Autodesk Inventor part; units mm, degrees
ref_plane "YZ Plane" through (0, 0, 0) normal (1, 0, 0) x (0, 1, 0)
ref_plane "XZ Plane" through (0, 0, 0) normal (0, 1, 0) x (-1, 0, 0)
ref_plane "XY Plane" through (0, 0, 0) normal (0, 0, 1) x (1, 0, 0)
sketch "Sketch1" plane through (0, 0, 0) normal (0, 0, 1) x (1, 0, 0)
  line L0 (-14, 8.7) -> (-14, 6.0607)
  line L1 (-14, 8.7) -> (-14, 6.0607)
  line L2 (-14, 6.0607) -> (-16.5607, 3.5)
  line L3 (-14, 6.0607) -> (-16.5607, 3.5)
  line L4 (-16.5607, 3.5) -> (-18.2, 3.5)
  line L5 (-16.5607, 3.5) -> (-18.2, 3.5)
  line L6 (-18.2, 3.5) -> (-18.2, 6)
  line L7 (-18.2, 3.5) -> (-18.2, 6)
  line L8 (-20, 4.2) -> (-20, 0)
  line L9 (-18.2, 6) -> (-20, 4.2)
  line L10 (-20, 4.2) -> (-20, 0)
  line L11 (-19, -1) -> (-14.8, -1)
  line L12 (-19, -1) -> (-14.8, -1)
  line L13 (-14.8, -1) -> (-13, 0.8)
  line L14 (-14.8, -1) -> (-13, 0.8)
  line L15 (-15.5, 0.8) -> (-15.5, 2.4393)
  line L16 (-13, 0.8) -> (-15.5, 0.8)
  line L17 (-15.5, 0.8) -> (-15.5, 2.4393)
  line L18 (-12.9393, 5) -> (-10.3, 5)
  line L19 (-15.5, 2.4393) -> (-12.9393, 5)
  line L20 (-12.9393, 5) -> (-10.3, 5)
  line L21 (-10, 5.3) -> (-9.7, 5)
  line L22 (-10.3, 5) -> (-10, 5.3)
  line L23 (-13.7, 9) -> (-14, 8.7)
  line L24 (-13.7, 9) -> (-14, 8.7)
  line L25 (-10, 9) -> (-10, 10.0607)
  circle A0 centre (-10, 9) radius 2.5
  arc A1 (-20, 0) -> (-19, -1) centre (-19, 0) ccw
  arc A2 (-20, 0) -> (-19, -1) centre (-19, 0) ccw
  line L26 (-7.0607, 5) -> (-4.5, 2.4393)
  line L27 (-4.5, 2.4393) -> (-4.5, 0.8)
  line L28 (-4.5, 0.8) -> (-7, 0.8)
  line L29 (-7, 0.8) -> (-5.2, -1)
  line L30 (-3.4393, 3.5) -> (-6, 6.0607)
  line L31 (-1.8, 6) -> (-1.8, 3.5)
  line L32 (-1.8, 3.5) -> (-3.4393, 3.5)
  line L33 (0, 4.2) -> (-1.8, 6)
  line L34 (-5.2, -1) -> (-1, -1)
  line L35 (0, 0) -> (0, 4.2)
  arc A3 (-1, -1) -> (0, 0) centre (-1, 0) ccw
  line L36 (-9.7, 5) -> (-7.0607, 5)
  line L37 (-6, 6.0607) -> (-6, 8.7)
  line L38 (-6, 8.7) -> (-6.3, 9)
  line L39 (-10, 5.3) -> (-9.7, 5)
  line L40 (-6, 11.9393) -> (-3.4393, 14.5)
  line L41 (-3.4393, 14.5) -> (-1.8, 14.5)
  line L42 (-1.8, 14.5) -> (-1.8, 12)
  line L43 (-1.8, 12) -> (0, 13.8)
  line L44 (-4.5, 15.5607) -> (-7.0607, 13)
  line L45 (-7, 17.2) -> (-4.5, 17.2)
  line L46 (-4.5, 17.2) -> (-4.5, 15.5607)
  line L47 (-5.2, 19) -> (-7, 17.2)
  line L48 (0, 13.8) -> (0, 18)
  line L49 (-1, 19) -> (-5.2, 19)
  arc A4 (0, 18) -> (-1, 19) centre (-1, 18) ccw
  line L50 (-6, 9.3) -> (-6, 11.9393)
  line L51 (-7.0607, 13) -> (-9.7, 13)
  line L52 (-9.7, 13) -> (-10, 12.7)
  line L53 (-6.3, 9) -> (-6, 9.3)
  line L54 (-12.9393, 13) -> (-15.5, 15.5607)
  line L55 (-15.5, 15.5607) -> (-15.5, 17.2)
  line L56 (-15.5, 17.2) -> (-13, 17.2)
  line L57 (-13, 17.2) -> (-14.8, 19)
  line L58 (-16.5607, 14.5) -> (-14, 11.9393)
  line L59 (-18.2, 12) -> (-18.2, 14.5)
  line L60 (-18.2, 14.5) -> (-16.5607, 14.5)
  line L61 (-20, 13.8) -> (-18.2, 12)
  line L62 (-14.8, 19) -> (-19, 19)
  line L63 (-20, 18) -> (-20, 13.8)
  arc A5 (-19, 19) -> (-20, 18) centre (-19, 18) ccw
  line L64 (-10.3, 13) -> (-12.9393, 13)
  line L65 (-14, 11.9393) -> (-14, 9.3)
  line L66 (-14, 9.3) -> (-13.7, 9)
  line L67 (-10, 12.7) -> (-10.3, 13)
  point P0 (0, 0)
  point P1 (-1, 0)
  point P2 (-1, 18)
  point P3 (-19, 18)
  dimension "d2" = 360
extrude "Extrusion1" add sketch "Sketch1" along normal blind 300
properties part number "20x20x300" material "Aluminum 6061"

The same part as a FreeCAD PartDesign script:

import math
import FreeCAD as App
import Part
import Sketcher

V = App.Vector

doc = App.newDocument("Part")
body = doc.addObject("PartDesign::Body", "Body")

sketch1 = body.newObject("Sketcher::SketchObject", "Sketch")
sketch1.AttachmentSupport = (doc.getObject("XY_Plane"), [""])
sketch1.MapMode = "FlatFace"
sketch1.addGeometry(Part.LineSegment(V(-13.7, 9, 0), V(-14, 8.7, 0)), False)
sketch1.addGeometry(Part.LineSegment(V(-14, 8.7, 0), V(-14, 6.0607, 0)), False)
sketch1.addGeometry(Part.LineSegment(V(-14, 6.0607, 0), V(-16.5607, 3.5, 0)), False)
sketch1.addGeometry(Part.LineSegment(V(-16.5607, 3.5, 0), V(-18.2, 3.5, 0)), False)
sketch1.addGeometry(Part.LineSegment(V(-18.2, 3.5, 0), V(-18.2, 6, 0)), False)
sketch1.addGeometry(Part.LineSegment(V(-18.2, 6, 0), V(-20, 4.2, 0)), False)
sketch1.addGeometry(Part.LineSegment(V(-20, 4.2, 0), V(-20, 0, 0)), False)
sketch1.addGeometry(Part.ArcOfCircle(Part.Circle(V(-19, 0, 0), V(0, 0, 1), 1), math.radians(180), math.radians(270)), False)
sketch1.addGeometry(Part.LineSegment(V(-19, -1, 0), V(-14.8, -1, 0)), False)
sketch1.addGeometry(Part.LineSegment(V(-14.8, -1, 0), V(-13, 0.8, 0)), False)
sketch1.addGeometry(Part.LineSegment(V(-13, 0.8, 0), V(-15.5, 0.8, 0)), False)
sketch1.addGeometry(Part.LineSegment(V(-15.5, 0.8, 0), V(-15.5, 2.4393, 0)), False)
sketch1.addGeometry(Part.LineSegment(V(-15.5, 2.4393, 0), V(-12.9393, 5, 0)), False)
sketch1.addGeometry(Part.LineSegment(V(-12.9393, 5, 0), V(-10.3, 5, 0)), False)
sketch1.addGeometry(Part.LineSegment(V(-10.3, 5, 0), V(-10, 5.3, 0)), False)
sketch1.addGeometry(Part.LineSegment(V(-10, 5.3, 0), V(-9.7, 5, 0)), False)
sketch1.addGeometry(Part.LineSegment(V(-9.7, 5, 0), V(-7.0607, 5, 0)), False)
sketch1.addGeometry(Part.LineSegment(V(-7.0607, 5, 0), V(-4.5, 2.4393, 0)), False)
sketch1.addGeometry(Part.LineSegment(V(-4.5, 2.4393, 0), V(-4.5, 0.8, 0)), False)
sketch1.addGeometry(Part.LineSegment(V(-4.5, 0.8, 0), V(-7, 0.8, 0)), False)
sketch1.addGeometry(Part.LineSegment(V(-7, 0.8, 0), V(-5.2, -1, 0)), False)
sketch1.addGeometry(Part.LineSegment(V(-5.2, -1, 0), V(-1, -1, 0)), False)
sketch1.addGeometry(Part.ArcOfCircle(Part.Circle(V(-1, 0, 0), V(0, 0, 1), 1), math.radians(-90), math.radians(0)), False)
sketch1.addGeometry(Part.LineSegment(V(0, 0, 0), V(0, 4.2, 0)), False)
sketch1.addGeometry(Part.LineSegment(V(0, 4.2, 0), V(-1.8, 6, 0)), False)
sketch1.addGeometry(Part.LineSegment(V(-1.8, 6, 0), V(-1.8, 3.5, 0)), False)
sketch1.addGeometry(Part.LineSegment(V(-1.8, 3.5, 0), V(-3.4393, 3.5, 0)), False)
sketch1.addGeometry(Part.LineSegment(V(-3.4393, 3.5, 0), V(-6, 6.0607, 0)), False)
sketch1.addGeometry(Part.LineSegment(V(-6, 6.0607, 0), V(-6, 8.7, 0)), False)
sketch1.addGeometry(Part.LineSegment(V(-6, 8.7, 0), V(-6.3, 9, 0)), False)
sketch1.addGeometry(Part.LineSegment(V(-6.3, 9, 0), V(-6, 9.3, 0)), False)
sketch1.addGeometry(Part.LineSegment(V(-6, 9.3, 0), V(-6, 11.9393, 0)), False)
sketch1.addGeometry(Part.LineSegment(V(-6, 11.9393, 0), V(-3.4393, 14.5, 0)), False)
sketch1.addGeometry(Part.LineSegment(V(-3.4393, 14.5, 0), V(-1.8, 14.5, 0)), False)
sketch1.addGeometry(Part.LineSegment(V(-1.8, 14.5, 0), V(-1.8, 12, 0)), False)
sketch1.addGeometry(Part.LineSegment(V(-1.8, 12, 0), V(0, 13.8, 0)), False)
sketch1.addGeometry(Part.LineSegment(V(0, 13.8, 0), V(0, 18, 0)), False)
sketch1.addGeometry(Part.ArcOfCircle(Part.Circle(V(-1, 18, 0), V(0, 0, 1), 1), math.radians(0), math.radians(90)), False)
sketch1.addGeometry(Part.LineSegment(V(-1, 19, 0), V(-5.2, 19, 0)), False)
sketch1.addGeometry(Part.LineSegment(V(-5.2, 19, 0), V(-7, 17.2, 0)), False)
sketch1.addGeometry(Part.LineSegment(V(-7, 17.2, 0), V(-4.5, 17.2, 0)), False)
sketch1.addGeometry(Part.LineSegment(V(-4.5, 17.2, 0), V(-4.5, 15.5607, 0)), False)
sketch1.addGeometry(Part.LineSegment(V(-4.5, 15.5607, 0), V(-7.0607, 13, 0)), False)
sketch1.addGeometry(Part.LineSegment(V(-7.0607, 13, 0), V(-9.7, 13, 0)), False)
sketch1.addGeometry(Part.LineSegment(V(-9.7, 13, 0), V(-10, 12.7, 0)), False)
sketch1.addGeometry(Part.LineSegment(V(-10, 12.7, 0), V(-10.3, 13, 0)), False)
sketch1.addGeometry(Part.LineSegment(V(-10.3, 13, 0), V(-12.9393, 13, 0)), False)
sketch1.addGeometry(Part.LineSegment(V(-12.9393, 13, 0), V(-15.5, 15.5607, 0)), False)
sketch1.addGeometry(Part.LineSegment(V(-15.5, 15.5607, 0), V(-15.5, 17.2, 0)), False)
sketch1.addGeometry(Part.LineSegment(V(-15.5, 17.2, 0), V(-13, 17.2, 0)), False)
sketch1.addGeometry(Part.LineSegment(V(-13, 17.2, 0), V(-14.8, 19, 0)), False)
sketch1.addGeometry(Part.LineSegment(V(-14.8, 19, 0), V(-19, 19, 0)), False)
sketch1.addGeometry(Part.ArcOfCircle(Part.Circle(V(-19, 18, 0), V(0, 0, 1), 1), math.radians(90), math.radians(180)), False)
sketch1.addGeometry(Part.LineSegment(V(-20, 18, 0), V(-20, 13.8, 0)), False)
sketch1.addGeometry(Part.LineSegment(V(-20, 13.8, 0), V(-18.2, 12, 0)), False)
sketch1.addGeometry(Part.LineSegment(V(-18.2, 12, 0), V(-18.2, 14.5, 0)), False)
sketch1.addGeometry(Part.LineSegment(V(-18.2, 14.5, 0), V(-16.5607, 14.5, 0)), False)
sketch1.addGeometry(Part.LineSegment(V(-16.5607, 14.5, 0), V(-14, 11.9393, 0)), False)
sketch1.addGeometry(Part.LineSegment(V(-14, 11.9393, 0), V(-14, 9.3, 0)), False)
sketch1.addGeometry(Part.LineSegment(V(-14, 9.3, 0), V(-13.7, 9, 0)), False)
sketch1.addGeometry(Part.Circle(V(-10, 9, 0), V(0, 0, 1), 2.5), False)
sketch1.addConstraint(Sketcher.Constraint("Coincident", 0, 2, 1, 1))
sketch1.addConstraint(Sketcher.Constraint("Coincident", 1, 2, 2, 1))
sketch1.addConstraint(Sketcher.Constraint("Coincident", 2, 2, 3, 1))
sketch1.addConstraint(Sketcher.Constraint("Coincident", 3, 2, 4, 1))
sketch1.addConstraint(Sketcher.Constraint("Coincident", 4, 2, 5, 1))
sketch1.addConstraint(Sketcher.Constraint("Coincident", 5, 2, 6, 1))
sketch1.addConstraint(Sketcher.Constraint("Tangent", 6, 2, 7, 1))
sketch1.addConstraint(Sketcher.Constraint("Tangent", 7, 2, 8, 1))
sketch1.addConstraint(Sketcher.Constraint("Coincident", 8, 2, 9, 1))
sketch1.addConstraint(Sketcher.Constraint("Coincident", 9, 2, 10, 1))
sketch1.addConstraint(Sketcher.Constraint("Coincident", 10, 2, 11, 1))
sketch1.addConstraint(Sketcher.Constraint("Coincident", 11, 2, 12, 1))
sketch1.addConstraint(Sketcher.Constraint("Coincident", 12, 2, 13, 1))
sketch1.addConstraint(Sketcher.Constraint("Coincident", 13, 2, 14, 1))
sketch1.addConstraint(Sketcher.Constraint("Coincident", 14, 2, 15, 1))
sketch1.addConstraint(Sketcher.Constraint("Coincident", 15, 2, 16, 1))
sketch1.addConstraint(Sketcher.Constraint("Coincident", 16, 2, 17, 1))
sketch1.addConstraint(Sketcher.Constraint("Coincident", 17, 2, 18, 1))
sketch1.addConstraint(Sketcher.Constraint("Coincident", 18, 2, 19, 1))
sketch1.addConstraint(Sketcher.Constraint("Coincident", 19, 2, 20, 1))
sketch1.addConstraint(Sketcher.Constraint("Coincident", 20, 2, 21, 1))
sketch1.addConstraint(Sketcher.Constraint("Tangent", 21, 2, 22, 1))
sketch1.addConstraint(Sketcher.Constraint("Tangent", 22, 2, 23, 1))
sketch1.addConstraint(Sketcher.Constraint("Coincident", 23, 2, 24, 1))
sketch1.addConstraint(Sketcher.Constraint("Coincident", 24, 2, 25, 1))
sketch1.addConstraint(Sketcher.Constraint("Coincident", 25, 2, 26, 1))
sketch1.addConstraint(Sketcher.Constraint("Coincident", 26, 2, 27, 1))
sketch1.addConstraint(Sketcher.Constraint("Coincident", 27, 2, 28, 1))
sketch1.addConstraint(Sketcher.Constraint("Coincident", 28, 2, 29, 1))
sketch1.addConstraint(Sketcher.Constraint("Coincident", 29, 2, 30, 1))
sketch1.addConstraint(Sketcher.Constraint("Coincident", 30, 2, 31, 1))
sketch1.addConstraint(Sketcher.Constraint("Coincident", 31, 2, 32, 1))
sketch1.addConstraint(Sketcher.Constraint("Coincident", 32, 2, 33, 1))
sketch1.addConstraint(Sketcher.Constraint("Coincident", 33, 2, 34, 1))
sketch1.addConstraint(Sketcher.Constraint("Coincident", 34, 2, 35, 1))
sketch1.addConstraint(Sketcher.Constraint("Coincident", 35, 2, 36, 1))
sketch1.addConstraint(Sketcher.Constraint("Tangent", 36, 2, 37, 1))
sketch1.addConstraint(Sketcher.Constraint("Tangent", 37, 2, 38, 1))
sketch1.addConstraint(Sketcher.Constraint("Coincident", 38, 2, 39, 1))
sketch1.addConstraint(Sketcher.Constraint("Coincident", 39, 2, 40, 1))
sketch1.addConstraint(Sketcher.Constraint("Coincident", 40, 2, 41, 1))
sketch1.addConstraint(Sketcher.Constraint("Coincident", 41, 2, 42, 1))
sketch1.addConstraint(Sketcher.Constraint("Coincident", 42, 2, 43, 1))
sketch1.addConstraint(Sketcher.Constraint("Coincident", 43, 2, 44, 1))
sketch1.addConstraint(Sketcher.Constraint("Coincident", 44, 2, 45, 1))
sketch1.addConstraint(Sketcher.Constraint("Coincident", 45, 2, 46, 1))
sketch1.addConstraint(Sketcher.Constraint("Coincident", 46, 2, 47, 1))
sketch1.addConstraint(Sketcher.Constraint("Coincident", 47, 2, 48, 1))
sketch1.addConstraint(Sketcher.Constraint("Coincident", 48, 2, 49, 1))
sketch1.addConstraint(Sketcher.Constraint("Coincident", 49, 2, 50, 1))
sketch1.addConstraint(Sketcher.Constraint("Coincident", 50, 2, 51, 1))
sketch1.addConstraint(Sketcher.Constraint("Tangent", 51, 2, 52, 1))
sketch1.addConstraint(Sketcher.Constraint("Tangent", 52, 2, 53, 1))
sketch1.addConstraint(Sketcher.Constraint("Coincident", 53, 2, 54, 1))
sketch1.addConstraint(Sketcher.Constraint("Coincident", 54, 2, 55, 1))
sketch1.addConstraint(Sketcher.Constraint("Coincident", 55, 2, 56, 1))
sketch1.addConstraint(Sketcher.Constraint("Coincident", 56, 2, 57, 1))
sketch1.addConstraint(Sketcher.Constraint("Coincident", 57, 2, 58, 1))
sketch1.addConstraint(Sketcher.Constraint("Coincident", 58, 2, 59, 1))
sketch1.addConstraint(Sketcher.Constraint("Coincident", 59, 2, 0, 1))
sketch1.addConstraint(Sketcher.Constraint("Vertical", 1))
sketch1.addConstraint(Sketcher.Constraint("Horizontal", 3))
sketch1.addConstraint(Sketcher.Constraint("Vertical", 4))
sketch1.addConstraint(Sketcher.Constraint("Vertical", 6))
sketch1.addConstraint(Sketcher.Constraint("Horizontal", 8))
sketch1.addConstraint(Sketcher.Constraint("Horizontal", 10))
sketch1.addConstraint(Sketcher.Constraint("Vertical", 11))
sketch1.addConstraint(Sketcher.Constraint("Horizontal", 13))
sketch1.addConstraint(Sketcher.Constraint("Horizontal", 16))
sketch1.addConstraint(Sketcher.Constraint("Vertical", 18))
sketch1.addConstraint(Sketcher.Constraint("Horizontal", 19))
sketch1.addConstraint(Sketcher.Constraint("Horizontal", 21))
sketch1.addConstraint(Sketcher.Constraint("Vertical", 23))
sketch1.addConstraint(Sketcher.Constraint("Vertical", 25))
sketch1.addConstraint(Sketcher.Constraint("Horizontal", 26))
sketch1.addConstraint(Sketcher.Constraint("Vertical", 28))
sketch1.addConstraint(Sketcher.Constraint("Vertical", 31))
sketch1.addConstraint(Sketcher.Constraint("Horizontal", 33))
sketch1.addConstraint(Sketcher.Constraint("Vertical", 34))
sketch1.addConstraint(Sketcher.Constraint("Vertical", 36))
sketch1.addConstraint(Sketcher.Constraint("Horizontal", 38))
sketch1.addConstraint(Sketcher.Constraint("Horizontal", 40))
sketch1.addConstraint(Sketcher.Constraint("Vertical", 41))
sketch1.addConstraint(Sketcher.Constraint("Horizontal", 43))
sketch1.addConstraint(Sketcher.Constraint("Horizontal", 46))
sketch1.addConstraint(Sketcher.Constraint("Vertical", 48))
sketch1.addConstraint(Sketcher.Constraint("Horizontal", 49))
sketch1.addConstraint(Sketcher.Constraint("Horizontal", 51))
sketch1.addConstraint(Sketcher.Constraint("Vertical", 53))
sketch1.addConstraint(Sketcher.Constraint("Vertical", 55))
sketch1.addConstraint(Sketcher.Constraint("Horizontal", 56))
sketch1.addConstraint(Sketcher.Constraint("Vertical", 58))
sketch1.addConstraint(Sketcher.Constraint("Coincident", 22, 2, -1, 1))
sketch1.addConstraint(Sketcher.Constraint("Equal", 7, 22))
sketch1.addConstraint(Sketcher.Constraint("Equal", 22, 37))
sketch1.addConstraint(Sketcher.Constraint("Equal", 37, 52))
sketch1.addConstraint(Sketcher.Constraint("PointOnObject", 7, 3, -1))
sketch1.addConstraint(Sketcher.Constraint("PointOnObject", 35, 2, -2))
sketch1.addConstraint(Sketcher.Constraint("Parallel", 0, 2))
sketch1.addConstraint(Sketcher.Constraint("Parallel", 2, 5))
sketch1.addConstraint(Sketcher.Constraint("Parallel", 5, 9))
sketch1.addConstraint(Sketcher.Constraint("Parallel", 9, 12))
sketch1.addConstraint(Sketcher.Constraint("Parallel", 12, 14))
sketch1.addConstraint(Sketcher.Constraint("Perpendicular", 14, 15))
sketch1.addConstraint(Sketcher.Constraint("Parallel", 15, 17))
sketch1.addConstraint(Sketcher.Constraint("Parallel", 17, 20))
sketch1.addConstraint(Sketcher.Constraint("Parallel", 20, 24))
sketch1.addConstraint(Sketcher.Constraint("Parallel", 24, 27))
sketch1.addConstraint(Sketcher.Constraint("Parallel", 27, 29))
sketch1.addConstraint(Sketcher.Constraint("Perpendicular", 29, 30))
sketch1.addConstraint(Sketcher.Constraint("Parallel", 30, 32))
sketch1.addConstraint(Sketcher.Constraint("Parallel", 32, 35))
sketch1.addConstraint(Sketcher.Constraint("Parallel", 35, 39))
sketch1.addConstraint(Sketcher.Constraint("Parallel", 39, 42))
sketch1.addConstraint(Sketcher.Constraint("Parallel", 42, 44))
sketch1.addConstraint(Sketcher.Constraint("Perpendicular", 44, 45))
sketch1.addConstraint(Sketcher.Constraint("Parallel", 45, 47))
sketch1.addConstraint(Sketcher.Constraint("Parallel", 47, 50))
sketch1.addConstraint(Sketcher.Constraint("Parallel", 50, 54))
sketch1.addConstraint(Sketcher.Constraint("Parallel", 54, 57))
sketch1.addConstraint(Sketcher.Constraint("Parallel", 57, 59))
sketch1.addConstraint(Sketcher.Constraint("Horizontal", 37, 3, 52, 3))
sketch1.addConstraint(Sketcher.Constraint("Horizontal", 13, 2, 15, 2))
sketch1.addConstraint(Sketcher.Constraint("Horizontal", 11, 2, 17, 2))
sketch1.addConstraint(Sketcher.Constraint("Horizontal", 10, 2, 18, 2))
sketch1.addConstraint(Sketcher.Constraint("Horizontal", 5, 2, 23, 2))
sketch1.addConstraint(Sketcher.Constraint("Horizontal", 4, 2, 24, 2))
sketch1.addConstraint(Sketcher.Constraint("Horizontal", 3, 2, 25, 2))
sketch1.addConstraint(Sketcher.Constraint("Horizontal", 1, 2, 27, 2))
sketch1.addConstraint(Sketcher.Constraint("Horizontal", 0, 2, 28, 2))
sketch1.addConstraint(Sketcher.Constraint("Horizontal", 60, 3, 29, 2))
sketch1.addConstraint(Sketcher.Constraint("Horizontal", 43, 2, 45, 2))
sketch1.addConstraint(Sketcher.Constraint("Horizontal", 41, 2, 47, 2))
sketch1.addConstraint(Sketcher.Constraint("Horizontal", 40, 2, 48, 2))
sketch1.addConstraint(Sketcher.Constraint("Horizontal", 35, 2, 53, 2))
sketch1.addConstraint(Sketcher.Constraint("Horizontal", 34, 2, 54, 2))
sketch1.addConstraint(Sketcher.Constraint("Horizontal", 33, 2, 55, 2))
sketch1.addConstraint(Sketcher.Constraint("Horizontal", 31, 2, 57, 2))
sketch1.addConstraint(Sketcher.Constraint("Horizontal", 30, 2, 58, 2))
sketch1.addConstraint(Sketcher.Constraint("Horizontal", 29, 2, 59, 2))
sketch1.addConstraint(Sketcher.Constraint("Vertical", 7, 3, 52, 3))
sketch1.addConstraint(Sketcher.Constraint("Vertical", 60, 3, 14, 2))
sketch1.addConstraint(Sketcher.Constraint("Vertical", 28, 2, 30, 2))
sketch1.addConstraint(Sketcher.Constraint("Vertical", 26, 2, 32, 2))
sketch1.addConstraint(Sketcher.Constraint("Vertical", 25, 2, 33, 2))
sketch1.addConstraint(Sketcher.Constraint("Vertical", 20, 2, 38, 2))
sketch1.addConstraint(Sketcher.Constraint("Vertical", 19, 2, 39, 2))
sketch1.addConstraint(Sketcher.Constraint("Vertical", 18, 2, 40, 2))
sketch1.addConstraint(Sketcher.Constraint("Vertical", 16, 2, 42, 2))
sketch1.addConstraint(Sketcher.Constraint("Vertical", 15, 2, 43, 2))
sketch1.addConstraint(Sketcher.Constraint("Vertical", 14, 2, 44, 2))
sketch1.addConstraint(Sketcher.Constraint("Vertical", 13, 2, 45, 2))
sketch1.addConstraint(Sketcher.Constraint("Vertical", 12, 2, 46, 2))
sketch1.addConstraint(Sketcher.Constraint("Vertical", 9, 2, 49, 2))
sketch1.addConstraint(Sketcher.Constraint("Equal", 13, 16))
sketch1.addConstraint(Sketcher.Constraint("Equal", 10, 19))
sketch1.addConstraint(Sketcher.Constraint("Equal", 8, 21))
sketch1.addConstraint(Sketcher.Constraint("Equal", 3, 26))
sketch1.addConstraint(Sketcher.Constraint("Equal", 46, 1))
sketch1.addConstraint(Sketcher.Constraint("Equal", 49, 4))
sketch1.addConstraint(Sketcher.Constraint("Equal", 51, 6))
sketch1.addConstraint(Sketcher.Constraint("Equal", 56, 11))
sketch1.addConstraint(Sketcher.Constraint("Equal", 28, 31))
sketch1.addConstraint(Sketcher.Constraint("Equal", 25, 34))
sketch1.addConstraint(Sketcher.Constraint("Equal", 23, 36))
sketch1.addConstraint(Sketcher.Constraint("Equal", 18, 41))
sketch1.addConstraint(Sketcher.Constraint("Equal", 5, 9))
sketch1.addConstraint(Sketcher.Constraint("Equal", 2, 12))
sketch1.addConstraint(Sketcher.Constraint("Equal", 0, 14))
sketch1.addConstraint(Sketcher.Constraint("Diameter", 60, 5.0))
sketch1.addConstraint(Sketcher.Constraint("Radius", 7, 1.0))
sketch1.addConstraint(Sketcher.Constraint("DistanceX", 8, 1, 8, 2, 4.2))
sketch1.addConstraint(Sketcher.Constraint("DistanceX", 10, 2, 10, 1, 2.5))
sketch1.addConstraint(Sketcher.Constraint("DistanceX", 7, 3, -1, 1, 19.0))
sketch1.addConstraint(Sketcher.Constraint("DistanceX", 0, 2, -1, 1, 14.0))
sketch1.addConstraint(Sketcher.Constraint("DistanceY", -1, 1, 4, 2, 6.0))
sketch1.addConstraint(Sketcher.Constraint("DistanceY", -1, 1, 0, 2, 8.7))
sketch1.addConstraint(Sketcher.Constraint("DistanceX", 3, 2, 3, 1, 1.6393))
pad1 = body.newObject("PartDesign::Pad", "Pad")
pad1.Profile = sketch1
pad1.Length = 300

doc.recompute()
